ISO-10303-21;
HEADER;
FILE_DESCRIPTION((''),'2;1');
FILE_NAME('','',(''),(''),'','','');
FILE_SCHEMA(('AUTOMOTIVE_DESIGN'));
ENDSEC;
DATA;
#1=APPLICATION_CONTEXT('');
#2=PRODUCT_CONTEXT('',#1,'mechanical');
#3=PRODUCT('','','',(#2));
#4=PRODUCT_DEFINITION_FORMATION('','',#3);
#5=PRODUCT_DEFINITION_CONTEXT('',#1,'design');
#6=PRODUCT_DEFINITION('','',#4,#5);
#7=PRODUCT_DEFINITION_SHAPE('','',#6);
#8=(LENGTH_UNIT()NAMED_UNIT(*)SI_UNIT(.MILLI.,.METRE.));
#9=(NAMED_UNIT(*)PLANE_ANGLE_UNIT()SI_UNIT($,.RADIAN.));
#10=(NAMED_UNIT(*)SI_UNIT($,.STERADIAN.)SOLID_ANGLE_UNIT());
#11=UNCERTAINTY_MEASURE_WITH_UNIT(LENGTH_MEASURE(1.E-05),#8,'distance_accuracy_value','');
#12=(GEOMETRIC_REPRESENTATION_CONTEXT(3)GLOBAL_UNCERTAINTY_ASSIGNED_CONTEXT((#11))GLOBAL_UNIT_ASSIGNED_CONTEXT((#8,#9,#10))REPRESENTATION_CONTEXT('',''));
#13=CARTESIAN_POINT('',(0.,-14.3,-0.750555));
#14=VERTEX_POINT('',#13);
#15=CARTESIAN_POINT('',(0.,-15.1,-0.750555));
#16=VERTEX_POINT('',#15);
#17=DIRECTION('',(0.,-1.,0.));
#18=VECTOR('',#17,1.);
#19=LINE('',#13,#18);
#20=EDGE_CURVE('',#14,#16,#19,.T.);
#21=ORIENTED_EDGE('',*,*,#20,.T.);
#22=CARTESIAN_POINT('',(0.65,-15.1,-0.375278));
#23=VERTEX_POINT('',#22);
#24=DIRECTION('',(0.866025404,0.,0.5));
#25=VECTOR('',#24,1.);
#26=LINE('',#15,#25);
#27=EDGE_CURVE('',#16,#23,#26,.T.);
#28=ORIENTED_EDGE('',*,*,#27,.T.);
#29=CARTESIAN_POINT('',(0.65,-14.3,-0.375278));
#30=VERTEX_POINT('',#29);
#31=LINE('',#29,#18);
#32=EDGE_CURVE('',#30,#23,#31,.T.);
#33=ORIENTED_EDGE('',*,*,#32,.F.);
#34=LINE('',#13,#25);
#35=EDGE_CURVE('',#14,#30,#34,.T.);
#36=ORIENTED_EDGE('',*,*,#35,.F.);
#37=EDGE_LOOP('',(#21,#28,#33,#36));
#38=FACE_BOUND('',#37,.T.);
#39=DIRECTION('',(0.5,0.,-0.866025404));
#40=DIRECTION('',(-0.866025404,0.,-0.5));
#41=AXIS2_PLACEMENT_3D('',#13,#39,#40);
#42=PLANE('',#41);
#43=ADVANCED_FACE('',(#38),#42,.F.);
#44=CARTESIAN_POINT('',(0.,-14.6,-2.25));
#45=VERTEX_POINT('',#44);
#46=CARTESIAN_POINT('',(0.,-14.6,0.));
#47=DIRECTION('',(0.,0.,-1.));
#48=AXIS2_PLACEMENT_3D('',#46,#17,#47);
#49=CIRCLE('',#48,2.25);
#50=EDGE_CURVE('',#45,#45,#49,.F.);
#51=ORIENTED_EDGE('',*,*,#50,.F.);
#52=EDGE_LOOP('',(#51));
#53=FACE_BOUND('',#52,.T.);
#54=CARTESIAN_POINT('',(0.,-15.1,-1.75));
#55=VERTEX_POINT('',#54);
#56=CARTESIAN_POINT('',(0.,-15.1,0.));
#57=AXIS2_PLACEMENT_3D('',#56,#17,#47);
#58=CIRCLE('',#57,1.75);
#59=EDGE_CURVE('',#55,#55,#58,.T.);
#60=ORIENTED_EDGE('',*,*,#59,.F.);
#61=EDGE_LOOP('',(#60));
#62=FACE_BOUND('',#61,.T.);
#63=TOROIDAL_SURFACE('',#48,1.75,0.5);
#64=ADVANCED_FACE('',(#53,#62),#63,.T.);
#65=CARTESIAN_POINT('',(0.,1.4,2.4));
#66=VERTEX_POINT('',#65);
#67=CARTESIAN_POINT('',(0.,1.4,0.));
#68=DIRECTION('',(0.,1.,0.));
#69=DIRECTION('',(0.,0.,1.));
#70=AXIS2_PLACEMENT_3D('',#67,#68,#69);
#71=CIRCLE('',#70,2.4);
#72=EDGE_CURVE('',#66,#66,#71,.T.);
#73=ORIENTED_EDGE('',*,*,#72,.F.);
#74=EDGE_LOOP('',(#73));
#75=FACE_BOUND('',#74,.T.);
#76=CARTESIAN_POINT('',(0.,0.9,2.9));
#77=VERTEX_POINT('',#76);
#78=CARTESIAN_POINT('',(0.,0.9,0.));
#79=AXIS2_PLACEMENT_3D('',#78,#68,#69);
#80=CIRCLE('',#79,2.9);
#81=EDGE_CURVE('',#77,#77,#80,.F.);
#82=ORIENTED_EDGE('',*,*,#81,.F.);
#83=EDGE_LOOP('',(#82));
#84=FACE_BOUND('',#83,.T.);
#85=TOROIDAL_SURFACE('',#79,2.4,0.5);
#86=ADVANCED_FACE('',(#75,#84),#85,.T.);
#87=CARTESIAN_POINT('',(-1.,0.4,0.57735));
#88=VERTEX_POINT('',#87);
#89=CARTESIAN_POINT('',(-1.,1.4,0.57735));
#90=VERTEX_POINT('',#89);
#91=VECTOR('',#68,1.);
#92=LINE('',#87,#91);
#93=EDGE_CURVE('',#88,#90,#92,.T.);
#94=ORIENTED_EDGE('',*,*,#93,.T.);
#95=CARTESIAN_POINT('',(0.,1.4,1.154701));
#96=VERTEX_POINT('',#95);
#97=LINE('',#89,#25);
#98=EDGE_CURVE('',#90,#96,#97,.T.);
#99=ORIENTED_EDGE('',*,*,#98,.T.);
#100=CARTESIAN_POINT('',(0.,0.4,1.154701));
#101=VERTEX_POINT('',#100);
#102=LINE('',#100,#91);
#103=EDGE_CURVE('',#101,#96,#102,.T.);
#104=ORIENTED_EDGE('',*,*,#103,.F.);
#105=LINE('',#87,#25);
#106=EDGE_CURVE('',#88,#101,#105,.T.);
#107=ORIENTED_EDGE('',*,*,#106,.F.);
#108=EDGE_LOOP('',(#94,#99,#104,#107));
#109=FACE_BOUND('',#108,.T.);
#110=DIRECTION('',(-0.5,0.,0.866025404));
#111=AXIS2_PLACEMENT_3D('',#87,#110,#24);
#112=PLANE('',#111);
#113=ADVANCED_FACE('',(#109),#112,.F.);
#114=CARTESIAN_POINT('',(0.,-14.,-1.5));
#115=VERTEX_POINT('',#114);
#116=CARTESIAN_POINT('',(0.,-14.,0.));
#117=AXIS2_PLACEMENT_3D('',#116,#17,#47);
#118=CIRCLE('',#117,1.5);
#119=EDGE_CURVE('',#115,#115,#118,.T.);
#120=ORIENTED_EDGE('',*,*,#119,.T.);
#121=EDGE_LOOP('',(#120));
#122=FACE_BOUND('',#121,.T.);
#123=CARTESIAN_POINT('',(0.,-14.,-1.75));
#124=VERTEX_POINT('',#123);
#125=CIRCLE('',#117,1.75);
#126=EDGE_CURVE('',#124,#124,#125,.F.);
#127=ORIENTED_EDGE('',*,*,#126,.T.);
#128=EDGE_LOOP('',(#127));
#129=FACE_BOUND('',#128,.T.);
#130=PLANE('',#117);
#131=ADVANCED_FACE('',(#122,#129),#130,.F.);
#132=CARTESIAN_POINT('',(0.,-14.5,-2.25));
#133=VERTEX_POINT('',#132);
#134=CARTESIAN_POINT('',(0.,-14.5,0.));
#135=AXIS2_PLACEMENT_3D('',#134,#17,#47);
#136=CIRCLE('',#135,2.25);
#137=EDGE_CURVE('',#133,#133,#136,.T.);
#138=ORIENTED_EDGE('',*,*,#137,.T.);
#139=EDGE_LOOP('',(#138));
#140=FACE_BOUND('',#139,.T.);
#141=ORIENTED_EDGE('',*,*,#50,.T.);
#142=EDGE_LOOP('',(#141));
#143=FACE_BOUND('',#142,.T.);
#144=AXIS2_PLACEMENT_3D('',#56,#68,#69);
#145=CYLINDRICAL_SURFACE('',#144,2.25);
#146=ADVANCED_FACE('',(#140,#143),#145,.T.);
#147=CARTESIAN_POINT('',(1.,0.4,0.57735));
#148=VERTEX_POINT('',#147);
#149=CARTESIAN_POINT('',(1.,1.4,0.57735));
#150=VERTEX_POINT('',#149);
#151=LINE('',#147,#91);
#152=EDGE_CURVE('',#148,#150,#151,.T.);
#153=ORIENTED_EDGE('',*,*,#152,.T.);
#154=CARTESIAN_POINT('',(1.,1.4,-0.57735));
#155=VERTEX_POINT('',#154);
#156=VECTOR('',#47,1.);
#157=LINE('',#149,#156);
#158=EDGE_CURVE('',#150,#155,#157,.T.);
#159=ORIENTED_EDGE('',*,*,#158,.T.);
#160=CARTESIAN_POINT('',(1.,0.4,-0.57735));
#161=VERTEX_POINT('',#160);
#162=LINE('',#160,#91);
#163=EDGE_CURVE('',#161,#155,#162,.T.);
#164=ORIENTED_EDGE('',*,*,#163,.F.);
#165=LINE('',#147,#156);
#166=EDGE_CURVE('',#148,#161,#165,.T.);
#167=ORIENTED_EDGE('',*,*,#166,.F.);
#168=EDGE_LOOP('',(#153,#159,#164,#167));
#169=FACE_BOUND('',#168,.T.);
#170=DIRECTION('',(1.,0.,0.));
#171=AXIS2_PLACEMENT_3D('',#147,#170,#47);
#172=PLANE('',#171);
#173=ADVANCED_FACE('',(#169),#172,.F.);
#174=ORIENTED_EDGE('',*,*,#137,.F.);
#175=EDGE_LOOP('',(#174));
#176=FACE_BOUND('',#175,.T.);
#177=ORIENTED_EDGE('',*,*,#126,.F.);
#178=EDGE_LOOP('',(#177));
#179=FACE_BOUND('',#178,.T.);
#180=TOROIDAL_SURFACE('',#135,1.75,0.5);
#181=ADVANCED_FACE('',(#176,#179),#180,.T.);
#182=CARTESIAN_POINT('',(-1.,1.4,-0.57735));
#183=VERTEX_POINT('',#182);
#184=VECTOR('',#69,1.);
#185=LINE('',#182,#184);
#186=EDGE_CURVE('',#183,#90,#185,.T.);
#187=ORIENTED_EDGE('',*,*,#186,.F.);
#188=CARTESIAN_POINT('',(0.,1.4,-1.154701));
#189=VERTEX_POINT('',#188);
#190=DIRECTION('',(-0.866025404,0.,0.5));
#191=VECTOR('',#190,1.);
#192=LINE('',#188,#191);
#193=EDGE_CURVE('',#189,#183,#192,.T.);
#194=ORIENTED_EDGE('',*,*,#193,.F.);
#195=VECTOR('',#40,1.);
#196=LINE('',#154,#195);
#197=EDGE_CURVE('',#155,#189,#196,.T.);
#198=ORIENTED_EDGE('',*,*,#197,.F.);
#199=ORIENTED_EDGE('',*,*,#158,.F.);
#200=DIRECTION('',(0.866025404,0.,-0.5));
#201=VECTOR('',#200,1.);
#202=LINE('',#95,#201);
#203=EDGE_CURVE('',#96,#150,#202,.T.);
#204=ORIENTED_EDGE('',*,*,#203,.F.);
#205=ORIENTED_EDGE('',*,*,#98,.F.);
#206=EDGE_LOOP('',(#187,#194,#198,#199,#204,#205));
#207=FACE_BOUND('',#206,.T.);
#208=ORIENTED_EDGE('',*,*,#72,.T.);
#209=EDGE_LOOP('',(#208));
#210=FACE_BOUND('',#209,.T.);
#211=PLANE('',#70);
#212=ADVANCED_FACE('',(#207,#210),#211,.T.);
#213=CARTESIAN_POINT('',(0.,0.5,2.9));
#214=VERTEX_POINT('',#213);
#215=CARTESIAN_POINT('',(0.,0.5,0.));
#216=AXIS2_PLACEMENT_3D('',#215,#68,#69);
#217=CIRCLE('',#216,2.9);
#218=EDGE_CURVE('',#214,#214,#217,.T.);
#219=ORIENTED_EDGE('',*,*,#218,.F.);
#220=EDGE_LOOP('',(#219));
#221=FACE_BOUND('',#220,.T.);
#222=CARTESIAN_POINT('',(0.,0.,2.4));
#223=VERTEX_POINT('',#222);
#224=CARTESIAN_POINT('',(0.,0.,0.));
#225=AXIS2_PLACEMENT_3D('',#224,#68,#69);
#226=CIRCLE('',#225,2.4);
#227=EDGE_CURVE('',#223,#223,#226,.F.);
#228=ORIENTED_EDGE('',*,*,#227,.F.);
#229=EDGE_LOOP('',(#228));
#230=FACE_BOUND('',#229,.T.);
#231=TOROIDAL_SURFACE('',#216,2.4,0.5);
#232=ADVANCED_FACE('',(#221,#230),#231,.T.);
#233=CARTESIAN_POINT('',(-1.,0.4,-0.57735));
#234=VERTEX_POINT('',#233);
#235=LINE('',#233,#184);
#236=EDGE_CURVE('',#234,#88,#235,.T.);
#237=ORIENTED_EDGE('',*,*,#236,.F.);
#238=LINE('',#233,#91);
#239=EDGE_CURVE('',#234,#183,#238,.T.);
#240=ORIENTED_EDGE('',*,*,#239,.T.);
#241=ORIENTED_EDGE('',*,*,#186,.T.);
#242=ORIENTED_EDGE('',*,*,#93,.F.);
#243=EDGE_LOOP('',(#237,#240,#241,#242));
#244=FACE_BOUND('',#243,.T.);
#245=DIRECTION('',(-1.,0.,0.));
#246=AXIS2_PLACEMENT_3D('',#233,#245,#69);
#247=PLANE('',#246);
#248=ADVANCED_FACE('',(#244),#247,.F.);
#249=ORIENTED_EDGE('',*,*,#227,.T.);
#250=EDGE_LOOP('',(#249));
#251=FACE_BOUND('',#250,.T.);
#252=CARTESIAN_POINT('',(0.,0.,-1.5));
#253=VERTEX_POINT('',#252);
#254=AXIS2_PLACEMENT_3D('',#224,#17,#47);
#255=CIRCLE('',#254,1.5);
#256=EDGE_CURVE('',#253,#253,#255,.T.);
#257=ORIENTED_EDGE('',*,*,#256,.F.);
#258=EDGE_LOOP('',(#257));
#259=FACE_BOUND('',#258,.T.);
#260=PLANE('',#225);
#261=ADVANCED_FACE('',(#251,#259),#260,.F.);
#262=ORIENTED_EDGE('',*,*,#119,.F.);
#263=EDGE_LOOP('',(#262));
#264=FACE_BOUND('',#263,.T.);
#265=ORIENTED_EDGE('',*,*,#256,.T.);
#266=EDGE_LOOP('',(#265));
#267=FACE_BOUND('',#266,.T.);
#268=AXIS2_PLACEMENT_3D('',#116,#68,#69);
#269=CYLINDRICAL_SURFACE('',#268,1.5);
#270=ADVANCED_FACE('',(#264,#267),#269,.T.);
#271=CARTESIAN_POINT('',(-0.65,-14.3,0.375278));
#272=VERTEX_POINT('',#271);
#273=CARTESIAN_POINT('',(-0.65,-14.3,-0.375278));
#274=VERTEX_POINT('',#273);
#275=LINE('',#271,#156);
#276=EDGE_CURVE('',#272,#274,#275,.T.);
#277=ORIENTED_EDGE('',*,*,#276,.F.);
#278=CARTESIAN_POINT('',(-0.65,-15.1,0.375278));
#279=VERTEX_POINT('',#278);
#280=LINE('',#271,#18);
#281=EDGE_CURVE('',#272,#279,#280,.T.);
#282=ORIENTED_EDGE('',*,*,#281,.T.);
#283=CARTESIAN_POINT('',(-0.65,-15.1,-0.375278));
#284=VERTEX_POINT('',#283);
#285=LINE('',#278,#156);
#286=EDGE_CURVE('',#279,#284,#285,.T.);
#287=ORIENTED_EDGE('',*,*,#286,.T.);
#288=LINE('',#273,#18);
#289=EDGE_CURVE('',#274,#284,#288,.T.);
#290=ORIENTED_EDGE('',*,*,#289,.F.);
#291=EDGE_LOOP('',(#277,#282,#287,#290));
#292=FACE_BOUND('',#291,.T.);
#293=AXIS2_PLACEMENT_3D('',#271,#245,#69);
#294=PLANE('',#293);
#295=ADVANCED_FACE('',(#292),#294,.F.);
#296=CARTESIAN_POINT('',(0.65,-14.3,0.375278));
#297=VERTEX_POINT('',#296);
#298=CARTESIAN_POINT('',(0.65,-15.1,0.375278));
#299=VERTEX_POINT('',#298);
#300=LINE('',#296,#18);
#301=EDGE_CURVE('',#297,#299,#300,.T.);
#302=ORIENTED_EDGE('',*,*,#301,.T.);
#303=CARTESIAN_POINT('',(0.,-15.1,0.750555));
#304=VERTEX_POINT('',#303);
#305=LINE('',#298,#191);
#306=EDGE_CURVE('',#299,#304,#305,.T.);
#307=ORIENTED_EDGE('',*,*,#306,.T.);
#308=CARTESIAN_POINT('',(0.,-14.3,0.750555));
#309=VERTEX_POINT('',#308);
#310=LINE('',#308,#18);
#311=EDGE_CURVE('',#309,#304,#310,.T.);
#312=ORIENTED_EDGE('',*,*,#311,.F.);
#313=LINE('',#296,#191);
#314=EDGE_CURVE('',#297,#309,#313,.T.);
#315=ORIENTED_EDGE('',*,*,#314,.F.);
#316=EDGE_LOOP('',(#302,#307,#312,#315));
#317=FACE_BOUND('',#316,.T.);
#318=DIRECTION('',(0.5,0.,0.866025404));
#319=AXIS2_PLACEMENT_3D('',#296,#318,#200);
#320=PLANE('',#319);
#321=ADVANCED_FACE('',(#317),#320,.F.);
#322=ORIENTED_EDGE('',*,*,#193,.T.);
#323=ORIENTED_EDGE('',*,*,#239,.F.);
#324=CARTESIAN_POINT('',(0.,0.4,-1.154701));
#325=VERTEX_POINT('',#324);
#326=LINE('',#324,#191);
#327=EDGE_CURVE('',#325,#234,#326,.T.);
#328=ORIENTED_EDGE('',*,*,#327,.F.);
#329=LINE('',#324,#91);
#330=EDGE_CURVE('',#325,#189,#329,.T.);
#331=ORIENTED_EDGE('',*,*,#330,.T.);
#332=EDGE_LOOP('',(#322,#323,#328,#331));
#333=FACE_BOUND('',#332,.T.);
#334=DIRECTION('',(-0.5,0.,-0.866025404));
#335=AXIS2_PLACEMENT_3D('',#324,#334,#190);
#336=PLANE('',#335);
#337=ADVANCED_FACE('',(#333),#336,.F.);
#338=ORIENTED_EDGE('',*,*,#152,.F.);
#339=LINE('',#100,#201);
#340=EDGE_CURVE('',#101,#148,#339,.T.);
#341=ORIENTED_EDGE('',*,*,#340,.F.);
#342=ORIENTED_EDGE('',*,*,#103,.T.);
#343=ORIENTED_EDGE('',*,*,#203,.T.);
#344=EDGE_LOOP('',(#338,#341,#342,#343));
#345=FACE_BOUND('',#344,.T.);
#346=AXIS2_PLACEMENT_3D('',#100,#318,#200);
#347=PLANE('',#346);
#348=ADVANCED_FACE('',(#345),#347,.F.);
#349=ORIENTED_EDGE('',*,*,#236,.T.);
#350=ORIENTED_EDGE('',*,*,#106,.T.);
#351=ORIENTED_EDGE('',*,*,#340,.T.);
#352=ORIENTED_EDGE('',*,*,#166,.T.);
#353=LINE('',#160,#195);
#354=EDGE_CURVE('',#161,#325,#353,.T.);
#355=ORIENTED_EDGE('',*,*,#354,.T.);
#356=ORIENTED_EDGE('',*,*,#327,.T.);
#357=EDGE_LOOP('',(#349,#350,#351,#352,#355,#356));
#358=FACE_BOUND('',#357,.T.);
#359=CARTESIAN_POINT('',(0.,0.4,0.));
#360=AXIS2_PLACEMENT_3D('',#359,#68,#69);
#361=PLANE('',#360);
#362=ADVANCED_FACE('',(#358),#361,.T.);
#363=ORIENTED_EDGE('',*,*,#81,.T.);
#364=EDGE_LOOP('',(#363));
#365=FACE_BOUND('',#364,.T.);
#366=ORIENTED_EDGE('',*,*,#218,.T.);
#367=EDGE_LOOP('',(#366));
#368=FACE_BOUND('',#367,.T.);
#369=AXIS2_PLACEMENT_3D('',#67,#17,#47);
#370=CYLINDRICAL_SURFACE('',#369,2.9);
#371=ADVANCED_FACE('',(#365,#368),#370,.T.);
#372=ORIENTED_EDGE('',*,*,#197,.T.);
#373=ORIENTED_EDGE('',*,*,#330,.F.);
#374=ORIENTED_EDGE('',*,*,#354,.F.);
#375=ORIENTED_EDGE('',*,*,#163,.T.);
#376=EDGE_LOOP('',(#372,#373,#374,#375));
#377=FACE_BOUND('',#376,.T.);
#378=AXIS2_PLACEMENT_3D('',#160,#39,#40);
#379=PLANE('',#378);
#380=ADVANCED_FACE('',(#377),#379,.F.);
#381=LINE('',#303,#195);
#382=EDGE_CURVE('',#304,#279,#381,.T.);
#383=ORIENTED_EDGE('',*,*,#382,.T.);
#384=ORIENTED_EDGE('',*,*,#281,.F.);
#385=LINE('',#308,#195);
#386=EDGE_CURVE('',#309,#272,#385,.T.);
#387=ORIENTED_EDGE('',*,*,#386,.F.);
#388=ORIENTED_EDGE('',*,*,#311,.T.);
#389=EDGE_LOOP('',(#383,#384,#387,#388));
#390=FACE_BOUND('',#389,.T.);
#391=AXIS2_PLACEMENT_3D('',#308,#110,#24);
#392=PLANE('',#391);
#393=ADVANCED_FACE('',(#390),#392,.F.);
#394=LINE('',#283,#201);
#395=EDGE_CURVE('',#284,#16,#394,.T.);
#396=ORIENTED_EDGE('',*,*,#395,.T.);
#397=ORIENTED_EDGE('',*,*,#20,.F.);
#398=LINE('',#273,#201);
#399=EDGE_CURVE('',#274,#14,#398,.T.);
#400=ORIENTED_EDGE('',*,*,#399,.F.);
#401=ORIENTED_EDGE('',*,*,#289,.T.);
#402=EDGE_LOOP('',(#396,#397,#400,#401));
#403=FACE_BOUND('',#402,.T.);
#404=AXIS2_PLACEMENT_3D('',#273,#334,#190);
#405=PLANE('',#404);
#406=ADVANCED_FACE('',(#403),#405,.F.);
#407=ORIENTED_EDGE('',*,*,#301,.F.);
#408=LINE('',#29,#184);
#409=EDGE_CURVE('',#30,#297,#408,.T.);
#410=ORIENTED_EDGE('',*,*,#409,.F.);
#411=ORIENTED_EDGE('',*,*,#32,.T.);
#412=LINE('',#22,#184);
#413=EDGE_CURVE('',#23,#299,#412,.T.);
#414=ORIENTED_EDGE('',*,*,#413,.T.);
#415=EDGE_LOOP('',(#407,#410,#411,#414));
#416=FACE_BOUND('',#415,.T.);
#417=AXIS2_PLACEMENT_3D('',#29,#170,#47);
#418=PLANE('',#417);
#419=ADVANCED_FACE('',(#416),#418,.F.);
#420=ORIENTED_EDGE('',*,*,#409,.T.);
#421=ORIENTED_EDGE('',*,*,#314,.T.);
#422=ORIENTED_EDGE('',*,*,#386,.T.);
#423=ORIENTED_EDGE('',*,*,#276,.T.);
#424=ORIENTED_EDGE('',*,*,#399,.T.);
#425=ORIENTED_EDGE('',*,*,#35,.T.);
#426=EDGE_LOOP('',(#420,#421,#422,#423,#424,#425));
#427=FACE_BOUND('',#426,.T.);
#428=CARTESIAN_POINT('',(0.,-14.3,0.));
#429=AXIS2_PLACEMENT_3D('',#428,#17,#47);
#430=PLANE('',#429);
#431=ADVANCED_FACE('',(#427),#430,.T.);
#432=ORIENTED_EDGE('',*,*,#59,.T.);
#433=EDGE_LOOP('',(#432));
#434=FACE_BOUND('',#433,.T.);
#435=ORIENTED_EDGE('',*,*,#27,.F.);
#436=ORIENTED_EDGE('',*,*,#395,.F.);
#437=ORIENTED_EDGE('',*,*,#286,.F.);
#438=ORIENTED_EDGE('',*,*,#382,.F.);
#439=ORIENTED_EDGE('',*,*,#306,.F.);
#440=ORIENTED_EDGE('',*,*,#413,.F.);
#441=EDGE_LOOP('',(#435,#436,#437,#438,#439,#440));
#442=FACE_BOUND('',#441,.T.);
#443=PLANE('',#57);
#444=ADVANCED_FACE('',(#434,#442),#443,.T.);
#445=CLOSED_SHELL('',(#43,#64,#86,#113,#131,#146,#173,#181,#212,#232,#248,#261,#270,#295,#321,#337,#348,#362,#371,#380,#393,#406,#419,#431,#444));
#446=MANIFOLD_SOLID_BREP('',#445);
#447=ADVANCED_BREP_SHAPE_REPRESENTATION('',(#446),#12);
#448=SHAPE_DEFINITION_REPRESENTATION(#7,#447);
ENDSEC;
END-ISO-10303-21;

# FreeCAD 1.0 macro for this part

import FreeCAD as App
import Part
import Sketcher
from FreeCAD import Vector
Q = App.Units.Quantity


def edges_at(feature, points):
    """Names of the edges that pass closest to the given points."""
    edges = feature.Shape.Edges
    near = lambda p: min(range(len(edges)), key=lambda i: edges[i].distToShape(Part.Vertex(*p))[0])
    return sorted({f"Edge{near(p) + 1}" for p in points})


def add_polygon(sketch, points):
    """Adds a closed chain of lines whose ends are joined by coincident constraints."""
    first, n = sketch.GeometryCount, len(points)
    for a, b in zip(points, points[1:] + points[:1]):
        sketch.addGeometry(Part.LineSegment(App.Vector(*a, 0), App.Vector(*b, 0)), False)
    for i in range(n):
        sketch.addConstraint(Sketcher.Constraint("Coincident", first + i, 2, first + (i + 1) % n, 1))

doc = App.newDocument("Part")
body = doc.addObject("PartDesign::Body", "Body")

sketch1 = body.newObject("Sketcher::SketchObject", "Sketch")
sketch1.AttachmentSupport = (doc.getObject("XZ_Plane"), [""])
sketch1.MapMode = "FlatFace"
sketch1.addGeometry(Part.Circle(Vector(0, 0, 0), Vector(0, 0, 1), 2.9), False)
sketch1.addConstraint([
    Sketcher.Constraint("Coincident", 0, 3, -1, 1),
    Sketcher.Constraint("Diameter", 0, 5.8),
])
pad1 = body.newObject("PartDesign::Pad", "Pad")
pad1.Profile = sketch1
pad1.Length = 1.4
pad1.Reversed = True

sketch2 = body.newObject("Sketcher::SketchObject", "Sketch001")
sketch2.AttachmentSupport = (doc.getObject("XZ_Plane"), [""])
sketch2.MapMode = "FlatFace"
sketch2.AttachmentOffset = App.Placement(Vector(0, 0, -1.4), App.Rotation())
add_polygon(sketch2, [(1, -0.6), (0, -1.2), (-1, -0.6), (-1, 0.6), (0, 1.2), (1, 0.6)])
sketch2.addConstraint([
    Sketcher.Constraint("Vertical", 2),
    Sketcher.Constraint("Vertical", 5),
    Sketcher.Constraint("Symmetric", 0, 2, 3, 2, -1, 1),
    Sketcher.Constraint("Symmetric", 1, 2, 4, 2, -1, 1),
    Sketcher.Constraint("PointOnObject", 0, 2, -2),
    Sketcher.Constraint("Parallel", 0, 3),
    Sketcher.Constraint("Horizontal", 2, 2, 4, 2),
    Sketcher.Constraint("Angle", 0, Q("-150 deg")),
    Sketcher.Constraint("DistanceX", 1, 2, -1, 1, 1.0),
    Sketcher.Constraint("DistanceY", 2, 1, 2, 2, 1.154701),
])
pocket1 = body.newObject("PartDesign::Pocket", "Pocket")
pocket1.Profile = sketch2
pocket1.Length = 1
pocket1.Reversed = True

sketch3 = body.newObject("Sketcher::SketchObject", "Sketch002")
sketch3.AttachmentSupport = (doc.getObject("XZ_Plane"), [""])
sketch3.MapMode = "FlatFace"
sketch3.addGeometry(Part.Circle(Vector(0, 0, 0), Vector(0, 0, 1), 1.5), False)
sketch3.addConstraint([
    Sketcher.Constraint("Coincident", 0, 3, -1, 1),
    Sketcher.Constraint("Diameter", 0, 3.0),
])
pad2 = body.newObject("PartDesign::Pad", "Pad001")
pad2.Profile = sketch3
pad2.Length = 14

sketch4 = body.newObject("Sketcher::SketchObject", "Sketch003")
sketch4.AttachmentSupport = (doc.getObject("XZ_Plane"), [""])
sketch4.MapMode = "FlatFace"
sketch4.AttachmentOffset = App.Placement(Vector(0, 0, 14), App.Rotation())
sketch4.addGeometry(Part.Circle(Vector(0, 0, 0), Vector(0, 0, 1), 2.2), False)
sketch4.addConstraint([
    Sketcher.Constraint("Coincident", 0, 3, -1, 1),
    Sketcher.Constraint("Diameter", 0, 4.5),
])
pad3 = body.newObject("PartDesign::Pad", "Pad002")
pad3.Profile = sketch4
pad3.Length = 1.1

sketch5 = body.newObject("Sketcher::SketchObject", "Sketch004")
sketch5.AttachmentSupport = (doc.getObject("XZ_Plane"), [""])
sketch5.MapMode = "FlatFace"
sketch5.AttachmentOffset = App.Placement(Vector(0, 0, 15.1), App.Rotation())
add_polygon(sketch5, [(0.7, 0.4), (0, 0.8), (-0.7, 0.4), (-0.7, -0.4), (0, -0.8), (0.7, -0.4)])
sketch5.addConstraint([
    Sketcher.Constraint("Vertical", 2),
    Sketcher.Constraint("Vertical", 5),
    Sketcher.Constraint("Symmetric", 0, 2, 3, 2, -1, 1),
    Sketcher.Constraint("Symmetric", 1, 2, 4, 2, -1, 1),
    Sketcher.Constraint("PointOnObject", 0, 2, -2),
    Sketcher.Constraint("Parallel", 0, 3),
    Sketcher.Constraint("Horizontal", 2, 2, 4, 2),
    Sketcher.Constraint("Angle", 0, Q("150 deg")),
    Sketcher.Constraint("DistanceX", 2, 2, 4, 2, 1.3),
    Sketcher.Constraint("DistanceY", 2, 2, 2, 1, 0.750555),
])
pocket2 = body.newObject("PartDesign::Pocket", "Pocket001")
pocket2.Profile = sketch5
pocket2.Length = 0.8
doc.recompute()

fillet = body.newObject("PartDesign::Fillet", "Fillet")
fillet.Base = (pocket2, edges_at(pocket2, [
    (0, 0, -2.9),
    (0, -14, 2.25),
    (0, -15.1, 2.25),
    (0, 1.4, -2.9),
]))
fillet.Radius = 0.5

doc.recompute()
